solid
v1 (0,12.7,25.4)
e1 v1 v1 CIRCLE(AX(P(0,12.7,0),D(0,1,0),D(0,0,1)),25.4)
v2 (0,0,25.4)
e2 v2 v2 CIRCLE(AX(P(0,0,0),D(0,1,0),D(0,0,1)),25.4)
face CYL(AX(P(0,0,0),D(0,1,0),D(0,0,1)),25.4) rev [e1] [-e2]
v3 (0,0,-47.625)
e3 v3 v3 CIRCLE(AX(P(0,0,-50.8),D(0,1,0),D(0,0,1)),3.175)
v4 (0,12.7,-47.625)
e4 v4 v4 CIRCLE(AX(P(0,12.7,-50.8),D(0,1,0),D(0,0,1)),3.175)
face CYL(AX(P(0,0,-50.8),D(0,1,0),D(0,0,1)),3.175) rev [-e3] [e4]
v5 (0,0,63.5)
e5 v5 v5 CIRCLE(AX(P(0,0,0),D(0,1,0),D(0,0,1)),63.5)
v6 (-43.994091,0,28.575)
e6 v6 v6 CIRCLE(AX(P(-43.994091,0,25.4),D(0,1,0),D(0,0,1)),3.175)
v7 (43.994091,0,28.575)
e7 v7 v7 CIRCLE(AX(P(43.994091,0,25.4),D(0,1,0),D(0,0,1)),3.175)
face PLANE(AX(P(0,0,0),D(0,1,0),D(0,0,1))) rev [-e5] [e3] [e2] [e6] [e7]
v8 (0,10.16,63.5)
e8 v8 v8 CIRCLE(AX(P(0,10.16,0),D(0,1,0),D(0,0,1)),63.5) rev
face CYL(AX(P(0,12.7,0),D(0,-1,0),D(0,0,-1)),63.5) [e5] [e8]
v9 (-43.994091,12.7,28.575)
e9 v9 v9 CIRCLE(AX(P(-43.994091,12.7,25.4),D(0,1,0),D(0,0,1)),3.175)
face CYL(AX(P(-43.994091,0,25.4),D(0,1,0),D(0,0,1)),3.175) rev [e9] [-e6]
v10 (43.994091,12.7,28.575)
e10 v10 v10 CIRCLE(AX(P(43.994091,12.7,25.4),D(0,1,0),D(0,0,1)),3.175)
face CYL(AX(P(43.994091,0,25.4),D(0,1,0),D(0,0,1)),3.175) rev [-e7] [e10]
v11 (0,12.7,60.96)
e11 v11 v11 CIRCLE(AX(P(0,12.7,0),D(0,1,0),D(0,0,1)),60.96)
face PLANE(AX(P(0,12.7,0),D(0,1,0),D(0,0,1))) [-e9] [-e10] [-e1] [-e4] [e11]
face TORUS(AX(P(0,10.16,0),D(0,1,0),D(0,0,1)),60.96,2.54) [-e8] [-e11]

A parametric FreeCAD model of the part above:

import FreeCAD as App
import Part
import Sketcher
from FreeCAD import Vector
Q = App.Units.Quantity


def edges_at(feature, points):
    """Names of the edges that pass closest to the given points."""
    edges = feature.Shape.Edges
    near = lambda p: min(range(len(edges)), key=lambda i: edges[i].distToShape(Part.Vertex(*p))[0])
    return sorted({f"Edge{near(p) + 1}" for p in points})

doc = App.newDocument("Part")
params = doc.addObject("Spreadsheet::Sheet", "Params")
for row, (alias, value) in enumerate([
    ("sketch1_diameter", "5 in"),
    ("pad1_length", "0.5 in"),
    ("sketch2_diameter", "2 in"),
    ("sketch3_diameter", "0.25 in"),
    ("fillet_radius", "0.1 in"),
], start=1):
    params.set(f"A{row}", alias)
    params.set(f"B{row}", "=" + value)
    params.setAlias(f"B{row}", alias)

body = doc.addObject("PartDesign::Body", "Body")

# Sketch on XZ plane
sketch1 = body.newObject("Sketcher::SketchObject", "Sketch")
sketch1.AttachmentSupport = (doc.getObject("XZ_Plane"), [""])
sketch1.MapMode = "FlatFace"
sketch1.addGeometry(Part.Circle(Vector(0, 0, 0), Vector(0, 0, 1), 63.5), False)
sketch1.addConstraint([
    Sketcher.Constraint("Coincident", 0, 3, -1, 1),
    Sketcher.Constraint("Diameter", 0, Q("5 in")),
])
sketch1.setExpression("Constraints[1]", "Params.sketch1_diameter")
pad1 = body.newObject("PartDesign::Pad", "Pad")
pad1.Profile = sketch1
pad1.setExpression("Length", "Params.pad1_length")
pad1.Reversed = True

# Sketch on XZ plane
sketch2 = body.newObject("Sketcher::SketchObject", "Sketch001")
sketch2.AttachmentSupport = (doc.getObject("XZ_Plane"), [""])
sketch2.MapMode = "FlatFace"
sketch2.AttachmentOffset = App.Placement(Vector(0, 0, -0.5 * 25.4), App.Rotation())
sketch2.addGeometry(Part.Circle(Vector(0, 0, 0), Vector(0, 0, 1), 25.4), False)
sketch2.addConstraint([
    Sketcher.Constraint("Coincident", 0, 3, -1, 1),
    Sketcher.Constraint("Diameter", 0, Q("2 in")),
])
sketch2.setExpression("Constraints[1]", "Params.sketch2_diameter")
pocket1 = body.newObject("PartDesign::Pocket", "Pocket")
pocket1.Profile = sketch2
pocket1.Type = "ThroughAll"
pocket1.Reversed = True

# Sketch on XZ plane
sketch3 = body.newObject("Sketcher::SketchObject", "Sketch002")
sketch3.AttachmentSupport = (doc.getObject("XZ_Plane"), [""])
sketch3.MapMode = "FlatFace"
sketch3.AttachmentOffset = App.Placement(Vector(0, 0, -0.5 * 25.4), App.Rotation())
sketch3.addGeometry([
    Part.Circle(Vector(0, -50.8, 0), Vector(0, 0, 1), 3.175),
    Part.Circle(Vector(43.994091, 25.4, 0), Vector(0, 0, 1), 3.175),
    Part.Circle(Vector(-43.994091, 25.4, 0), Vector(0, 0, 1), 3.175),
], False)
sketch3.addConstraint([
    Sketcher.Constraint("Equal", 0, 1),
    Sketcher.Constraint("Equal", 1, 2),
    Sketcher.Constraint("Symmetric", 1, 3, 2, 3, -2),
    Sketcher.Constraint("PointOnObject", 0, 3, -2),
    Sketcher.Constraint("Diameter", 0, Q("0.25 in")),
    Sketcher.Constraint("DistanceY", 0, 3, -1, 1, Q("2 in")),
    Sketcher.Constraint("DistanceY", -1, 1, 1, 3, Q("1 in")),
    Sketcher.Constraint("DistanceX", -1, 1, 1, 3, 43.994091),
])
sketch3.setExpression("Constraints[4]", "Params.sketch3_diameter")
pocket2 = body.newObject("PartDesign::Pocket", "Pocket001")
pocket2.Profile = sketch3
pocket2.Type = "ThroughAll"
pocket2.Reversed = True
doc.recompute()

fillet = body.newObject("PartDesign::Fillet", "Fillet")
fillet.Base = (pocket2, edges_at(pocket2, [(-63.5, 12.7, 0)]))
fillet.setExpression("Radius", "Params.fillet_radius")

doc.recompute()
